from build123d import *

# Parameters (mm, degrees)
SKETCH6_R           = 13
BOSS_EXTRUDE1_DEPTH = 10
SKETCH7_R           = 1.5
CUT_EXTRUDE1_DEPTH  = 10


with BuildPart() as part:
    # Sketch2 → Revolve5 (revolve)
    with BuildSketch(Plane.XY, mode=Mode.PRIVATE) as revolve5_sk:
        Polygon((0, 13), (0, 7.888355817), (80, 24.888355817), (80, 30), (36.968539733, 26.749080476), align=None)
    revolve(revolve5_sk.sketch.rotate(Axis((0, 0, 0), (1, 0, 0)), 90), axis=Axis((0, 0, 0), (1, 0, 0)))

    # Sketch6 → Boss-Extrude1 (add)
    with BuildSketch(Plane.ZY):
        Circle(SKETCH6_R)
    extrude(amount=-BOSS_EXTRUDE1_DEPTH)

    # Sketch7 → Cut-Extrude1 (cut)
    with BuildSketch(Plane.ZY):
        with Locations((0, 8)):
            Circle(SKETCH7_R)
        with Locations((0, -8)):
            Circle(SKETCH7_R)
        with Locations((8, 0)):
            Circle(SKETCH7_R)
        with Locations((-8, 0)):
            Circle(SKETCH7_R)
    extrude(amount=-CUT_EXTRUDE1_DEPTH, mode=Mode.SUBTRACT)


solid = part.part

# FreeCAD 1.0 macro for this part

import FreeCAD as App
import Part
import Sketcher
Q = App.Units.Quantity

doc = App.newDocument("Part")
body = doc.addObject("PartDesign::Body", "Body")

# Sketch on XY plane
sketch1 = body.newObject("Sketcher::SketchObject", "Sketch")
sketch1.AttachmentSupport = (doc.getObject("XY_Plane"), [""])
sketch1.MapMode = "FlatFace"
sketch1.addGeometry([
    Part.LineSegment(App.Vector(0, 13, 0), App.Vector(0, 7.888356, 0)),  # 0
    Part.LineSegment(App.Vector(0, 7.888356, 0), App.Vector(80, 24.888356, 0)),  # 1
    Part.LineSegment(App.Vector(80, 24.888356, 0), App.Vector(80, 30, 0)),  # 2
    Part.LineSegment(App.Vector(80, 30, 0), App.Vector(36.96854, 26.74908, 0)),  # 3
    Part.LineSegment(App.Vector(36.96854, 26.74908, 0), App.Vector(0, 13, 0)),  # 4
], False)
sketch1.addConstraint([
    Sketcher.Constraint("Coincident", 0, 2, 1, 1),
    Sketcher.Constraint("Coincident", 1, 2, 2, 1),
    Sketcher.Constraint("Coincident", 2, 2, 3, 1),
    Sketcher.Constraint("Coincident", 3, 2, 4, 1),
    Sketcher.Constraint("Coincident", 4, 2, 0, 1),
    Sketcher.Constraint("Vertical", 0),
    Sketcher.Constraint("Vertical", 2),
    Sketcher.Constraint("PointOnObject", 0, 2, -2),
    Sketcher.Constraint("Equal", 0, 2),
    Sketcher.Constraint("DistanceX", -1, 1, 1, 2, Q("80 mm")),
    Sketcher.Constraint("DistanceY", -1, 1, 2, 2, Q("30 mm")),
    Sketcher.Constraint("DistanceY", -1, 1, 4, 2, Q("13 mm")),
    Sketcher.Constraint("Distance", 4, Q("39.442492 mm")),
    Sketcher.Constraint("DistanceY", 0, 2, 0, 1, Q("5.111644 mm")),
    Sketcher.Constraint("DistanceX", -1, 1, 3, 2, Q("36.96854 mm")),
])
revolution = body.newObject("PartDesign::Revolution", "Revolution")
revolution.Profile = sketch1
revolution.ReferenceAxis = (sketch1, ["H_Axis"])
revolution.Angle = 360

# Sketch on YZ plane
sketch2 = body.newObject("Sketcher::SketchObject", "Sketch001")
sketch2.AttachmentSupport = (doc.getObject("YZ_Plane"), [""])
sketch2.MapMode = "FlatFace"
sketch2.addGeometry(Part.Circle(App.Vector(0, 0, 0), App.Vector(0, 0, 1), 13), False)
sketch2.addConstraint([
    Sketcher.Constraint("Coincident", 0, 3, -1, 1),
    Sketcher.Constraint("Diameter", 0, Q("26 mm")),
])
pad1 = body.newObject("PartDesign::Pad", "Pad")
pad1.Profile = sketch2
pad1.Length = 10

# Sketch on YZ plane
sketch3 = body.newObject("Sketcher::SketchObject", "Sketch002")
sketch3.AttachmentSupport = (doc.getObject("YZ_Plane"), [""])
sketch3.MapMode = "FlatFace"
sketch3.addGeometry([
    Part.Circle(App.Vector(8, 0, 0), App.Vector(0, 0, 1), 1.5),
    Part.Circle(App.Vector(-8, 0, 0), App.Vector(0, 0, 1), 1.5),
    Part.Circle(App.Vector(0, 8, 0), App.Vector(0, 0, 1), 1.5),
    Part.Circle(App.Vector(0, -8, 0), App.Vector(0, 0, 1), 1.5),
], False)
sketch3.addConstraint([
    Sketcher.Constraint("Equal", 0, 1),
    Sketcher.Constraint("Equal", 1, 2),
    Sketcher.Constraint("Equal", 2, 3),
    Sketcher.Constraint("Symmetric", 0, 3, 1, 3, -1, 1),
    Sketcher.Constraint("Symmetric", 2, 3, 3, 3, -1, 1),
    Sketcher.Constraint("PointOnObject", 0, 3, -1),
    Sketcher.Constraint("PointOnObject", 2, 3, -2),
    Sketcher.Constraint("Diameter", 0, Q("3 mm")),
    Sketcher.Constraint("DistanceX", -1, 1, 0, 3, Q("8 mm")),
    Sketcher.Constraint("DistanceY", -1, 1, 2, 3, Q("8 mm")),
])
pocket1 = body.newObject("PartDesign::Pocket", "Pocket")
pocket1.Profile = sketch3
pocket1.Length = 10
pocket1.Reversed = True

doc.recompute()
